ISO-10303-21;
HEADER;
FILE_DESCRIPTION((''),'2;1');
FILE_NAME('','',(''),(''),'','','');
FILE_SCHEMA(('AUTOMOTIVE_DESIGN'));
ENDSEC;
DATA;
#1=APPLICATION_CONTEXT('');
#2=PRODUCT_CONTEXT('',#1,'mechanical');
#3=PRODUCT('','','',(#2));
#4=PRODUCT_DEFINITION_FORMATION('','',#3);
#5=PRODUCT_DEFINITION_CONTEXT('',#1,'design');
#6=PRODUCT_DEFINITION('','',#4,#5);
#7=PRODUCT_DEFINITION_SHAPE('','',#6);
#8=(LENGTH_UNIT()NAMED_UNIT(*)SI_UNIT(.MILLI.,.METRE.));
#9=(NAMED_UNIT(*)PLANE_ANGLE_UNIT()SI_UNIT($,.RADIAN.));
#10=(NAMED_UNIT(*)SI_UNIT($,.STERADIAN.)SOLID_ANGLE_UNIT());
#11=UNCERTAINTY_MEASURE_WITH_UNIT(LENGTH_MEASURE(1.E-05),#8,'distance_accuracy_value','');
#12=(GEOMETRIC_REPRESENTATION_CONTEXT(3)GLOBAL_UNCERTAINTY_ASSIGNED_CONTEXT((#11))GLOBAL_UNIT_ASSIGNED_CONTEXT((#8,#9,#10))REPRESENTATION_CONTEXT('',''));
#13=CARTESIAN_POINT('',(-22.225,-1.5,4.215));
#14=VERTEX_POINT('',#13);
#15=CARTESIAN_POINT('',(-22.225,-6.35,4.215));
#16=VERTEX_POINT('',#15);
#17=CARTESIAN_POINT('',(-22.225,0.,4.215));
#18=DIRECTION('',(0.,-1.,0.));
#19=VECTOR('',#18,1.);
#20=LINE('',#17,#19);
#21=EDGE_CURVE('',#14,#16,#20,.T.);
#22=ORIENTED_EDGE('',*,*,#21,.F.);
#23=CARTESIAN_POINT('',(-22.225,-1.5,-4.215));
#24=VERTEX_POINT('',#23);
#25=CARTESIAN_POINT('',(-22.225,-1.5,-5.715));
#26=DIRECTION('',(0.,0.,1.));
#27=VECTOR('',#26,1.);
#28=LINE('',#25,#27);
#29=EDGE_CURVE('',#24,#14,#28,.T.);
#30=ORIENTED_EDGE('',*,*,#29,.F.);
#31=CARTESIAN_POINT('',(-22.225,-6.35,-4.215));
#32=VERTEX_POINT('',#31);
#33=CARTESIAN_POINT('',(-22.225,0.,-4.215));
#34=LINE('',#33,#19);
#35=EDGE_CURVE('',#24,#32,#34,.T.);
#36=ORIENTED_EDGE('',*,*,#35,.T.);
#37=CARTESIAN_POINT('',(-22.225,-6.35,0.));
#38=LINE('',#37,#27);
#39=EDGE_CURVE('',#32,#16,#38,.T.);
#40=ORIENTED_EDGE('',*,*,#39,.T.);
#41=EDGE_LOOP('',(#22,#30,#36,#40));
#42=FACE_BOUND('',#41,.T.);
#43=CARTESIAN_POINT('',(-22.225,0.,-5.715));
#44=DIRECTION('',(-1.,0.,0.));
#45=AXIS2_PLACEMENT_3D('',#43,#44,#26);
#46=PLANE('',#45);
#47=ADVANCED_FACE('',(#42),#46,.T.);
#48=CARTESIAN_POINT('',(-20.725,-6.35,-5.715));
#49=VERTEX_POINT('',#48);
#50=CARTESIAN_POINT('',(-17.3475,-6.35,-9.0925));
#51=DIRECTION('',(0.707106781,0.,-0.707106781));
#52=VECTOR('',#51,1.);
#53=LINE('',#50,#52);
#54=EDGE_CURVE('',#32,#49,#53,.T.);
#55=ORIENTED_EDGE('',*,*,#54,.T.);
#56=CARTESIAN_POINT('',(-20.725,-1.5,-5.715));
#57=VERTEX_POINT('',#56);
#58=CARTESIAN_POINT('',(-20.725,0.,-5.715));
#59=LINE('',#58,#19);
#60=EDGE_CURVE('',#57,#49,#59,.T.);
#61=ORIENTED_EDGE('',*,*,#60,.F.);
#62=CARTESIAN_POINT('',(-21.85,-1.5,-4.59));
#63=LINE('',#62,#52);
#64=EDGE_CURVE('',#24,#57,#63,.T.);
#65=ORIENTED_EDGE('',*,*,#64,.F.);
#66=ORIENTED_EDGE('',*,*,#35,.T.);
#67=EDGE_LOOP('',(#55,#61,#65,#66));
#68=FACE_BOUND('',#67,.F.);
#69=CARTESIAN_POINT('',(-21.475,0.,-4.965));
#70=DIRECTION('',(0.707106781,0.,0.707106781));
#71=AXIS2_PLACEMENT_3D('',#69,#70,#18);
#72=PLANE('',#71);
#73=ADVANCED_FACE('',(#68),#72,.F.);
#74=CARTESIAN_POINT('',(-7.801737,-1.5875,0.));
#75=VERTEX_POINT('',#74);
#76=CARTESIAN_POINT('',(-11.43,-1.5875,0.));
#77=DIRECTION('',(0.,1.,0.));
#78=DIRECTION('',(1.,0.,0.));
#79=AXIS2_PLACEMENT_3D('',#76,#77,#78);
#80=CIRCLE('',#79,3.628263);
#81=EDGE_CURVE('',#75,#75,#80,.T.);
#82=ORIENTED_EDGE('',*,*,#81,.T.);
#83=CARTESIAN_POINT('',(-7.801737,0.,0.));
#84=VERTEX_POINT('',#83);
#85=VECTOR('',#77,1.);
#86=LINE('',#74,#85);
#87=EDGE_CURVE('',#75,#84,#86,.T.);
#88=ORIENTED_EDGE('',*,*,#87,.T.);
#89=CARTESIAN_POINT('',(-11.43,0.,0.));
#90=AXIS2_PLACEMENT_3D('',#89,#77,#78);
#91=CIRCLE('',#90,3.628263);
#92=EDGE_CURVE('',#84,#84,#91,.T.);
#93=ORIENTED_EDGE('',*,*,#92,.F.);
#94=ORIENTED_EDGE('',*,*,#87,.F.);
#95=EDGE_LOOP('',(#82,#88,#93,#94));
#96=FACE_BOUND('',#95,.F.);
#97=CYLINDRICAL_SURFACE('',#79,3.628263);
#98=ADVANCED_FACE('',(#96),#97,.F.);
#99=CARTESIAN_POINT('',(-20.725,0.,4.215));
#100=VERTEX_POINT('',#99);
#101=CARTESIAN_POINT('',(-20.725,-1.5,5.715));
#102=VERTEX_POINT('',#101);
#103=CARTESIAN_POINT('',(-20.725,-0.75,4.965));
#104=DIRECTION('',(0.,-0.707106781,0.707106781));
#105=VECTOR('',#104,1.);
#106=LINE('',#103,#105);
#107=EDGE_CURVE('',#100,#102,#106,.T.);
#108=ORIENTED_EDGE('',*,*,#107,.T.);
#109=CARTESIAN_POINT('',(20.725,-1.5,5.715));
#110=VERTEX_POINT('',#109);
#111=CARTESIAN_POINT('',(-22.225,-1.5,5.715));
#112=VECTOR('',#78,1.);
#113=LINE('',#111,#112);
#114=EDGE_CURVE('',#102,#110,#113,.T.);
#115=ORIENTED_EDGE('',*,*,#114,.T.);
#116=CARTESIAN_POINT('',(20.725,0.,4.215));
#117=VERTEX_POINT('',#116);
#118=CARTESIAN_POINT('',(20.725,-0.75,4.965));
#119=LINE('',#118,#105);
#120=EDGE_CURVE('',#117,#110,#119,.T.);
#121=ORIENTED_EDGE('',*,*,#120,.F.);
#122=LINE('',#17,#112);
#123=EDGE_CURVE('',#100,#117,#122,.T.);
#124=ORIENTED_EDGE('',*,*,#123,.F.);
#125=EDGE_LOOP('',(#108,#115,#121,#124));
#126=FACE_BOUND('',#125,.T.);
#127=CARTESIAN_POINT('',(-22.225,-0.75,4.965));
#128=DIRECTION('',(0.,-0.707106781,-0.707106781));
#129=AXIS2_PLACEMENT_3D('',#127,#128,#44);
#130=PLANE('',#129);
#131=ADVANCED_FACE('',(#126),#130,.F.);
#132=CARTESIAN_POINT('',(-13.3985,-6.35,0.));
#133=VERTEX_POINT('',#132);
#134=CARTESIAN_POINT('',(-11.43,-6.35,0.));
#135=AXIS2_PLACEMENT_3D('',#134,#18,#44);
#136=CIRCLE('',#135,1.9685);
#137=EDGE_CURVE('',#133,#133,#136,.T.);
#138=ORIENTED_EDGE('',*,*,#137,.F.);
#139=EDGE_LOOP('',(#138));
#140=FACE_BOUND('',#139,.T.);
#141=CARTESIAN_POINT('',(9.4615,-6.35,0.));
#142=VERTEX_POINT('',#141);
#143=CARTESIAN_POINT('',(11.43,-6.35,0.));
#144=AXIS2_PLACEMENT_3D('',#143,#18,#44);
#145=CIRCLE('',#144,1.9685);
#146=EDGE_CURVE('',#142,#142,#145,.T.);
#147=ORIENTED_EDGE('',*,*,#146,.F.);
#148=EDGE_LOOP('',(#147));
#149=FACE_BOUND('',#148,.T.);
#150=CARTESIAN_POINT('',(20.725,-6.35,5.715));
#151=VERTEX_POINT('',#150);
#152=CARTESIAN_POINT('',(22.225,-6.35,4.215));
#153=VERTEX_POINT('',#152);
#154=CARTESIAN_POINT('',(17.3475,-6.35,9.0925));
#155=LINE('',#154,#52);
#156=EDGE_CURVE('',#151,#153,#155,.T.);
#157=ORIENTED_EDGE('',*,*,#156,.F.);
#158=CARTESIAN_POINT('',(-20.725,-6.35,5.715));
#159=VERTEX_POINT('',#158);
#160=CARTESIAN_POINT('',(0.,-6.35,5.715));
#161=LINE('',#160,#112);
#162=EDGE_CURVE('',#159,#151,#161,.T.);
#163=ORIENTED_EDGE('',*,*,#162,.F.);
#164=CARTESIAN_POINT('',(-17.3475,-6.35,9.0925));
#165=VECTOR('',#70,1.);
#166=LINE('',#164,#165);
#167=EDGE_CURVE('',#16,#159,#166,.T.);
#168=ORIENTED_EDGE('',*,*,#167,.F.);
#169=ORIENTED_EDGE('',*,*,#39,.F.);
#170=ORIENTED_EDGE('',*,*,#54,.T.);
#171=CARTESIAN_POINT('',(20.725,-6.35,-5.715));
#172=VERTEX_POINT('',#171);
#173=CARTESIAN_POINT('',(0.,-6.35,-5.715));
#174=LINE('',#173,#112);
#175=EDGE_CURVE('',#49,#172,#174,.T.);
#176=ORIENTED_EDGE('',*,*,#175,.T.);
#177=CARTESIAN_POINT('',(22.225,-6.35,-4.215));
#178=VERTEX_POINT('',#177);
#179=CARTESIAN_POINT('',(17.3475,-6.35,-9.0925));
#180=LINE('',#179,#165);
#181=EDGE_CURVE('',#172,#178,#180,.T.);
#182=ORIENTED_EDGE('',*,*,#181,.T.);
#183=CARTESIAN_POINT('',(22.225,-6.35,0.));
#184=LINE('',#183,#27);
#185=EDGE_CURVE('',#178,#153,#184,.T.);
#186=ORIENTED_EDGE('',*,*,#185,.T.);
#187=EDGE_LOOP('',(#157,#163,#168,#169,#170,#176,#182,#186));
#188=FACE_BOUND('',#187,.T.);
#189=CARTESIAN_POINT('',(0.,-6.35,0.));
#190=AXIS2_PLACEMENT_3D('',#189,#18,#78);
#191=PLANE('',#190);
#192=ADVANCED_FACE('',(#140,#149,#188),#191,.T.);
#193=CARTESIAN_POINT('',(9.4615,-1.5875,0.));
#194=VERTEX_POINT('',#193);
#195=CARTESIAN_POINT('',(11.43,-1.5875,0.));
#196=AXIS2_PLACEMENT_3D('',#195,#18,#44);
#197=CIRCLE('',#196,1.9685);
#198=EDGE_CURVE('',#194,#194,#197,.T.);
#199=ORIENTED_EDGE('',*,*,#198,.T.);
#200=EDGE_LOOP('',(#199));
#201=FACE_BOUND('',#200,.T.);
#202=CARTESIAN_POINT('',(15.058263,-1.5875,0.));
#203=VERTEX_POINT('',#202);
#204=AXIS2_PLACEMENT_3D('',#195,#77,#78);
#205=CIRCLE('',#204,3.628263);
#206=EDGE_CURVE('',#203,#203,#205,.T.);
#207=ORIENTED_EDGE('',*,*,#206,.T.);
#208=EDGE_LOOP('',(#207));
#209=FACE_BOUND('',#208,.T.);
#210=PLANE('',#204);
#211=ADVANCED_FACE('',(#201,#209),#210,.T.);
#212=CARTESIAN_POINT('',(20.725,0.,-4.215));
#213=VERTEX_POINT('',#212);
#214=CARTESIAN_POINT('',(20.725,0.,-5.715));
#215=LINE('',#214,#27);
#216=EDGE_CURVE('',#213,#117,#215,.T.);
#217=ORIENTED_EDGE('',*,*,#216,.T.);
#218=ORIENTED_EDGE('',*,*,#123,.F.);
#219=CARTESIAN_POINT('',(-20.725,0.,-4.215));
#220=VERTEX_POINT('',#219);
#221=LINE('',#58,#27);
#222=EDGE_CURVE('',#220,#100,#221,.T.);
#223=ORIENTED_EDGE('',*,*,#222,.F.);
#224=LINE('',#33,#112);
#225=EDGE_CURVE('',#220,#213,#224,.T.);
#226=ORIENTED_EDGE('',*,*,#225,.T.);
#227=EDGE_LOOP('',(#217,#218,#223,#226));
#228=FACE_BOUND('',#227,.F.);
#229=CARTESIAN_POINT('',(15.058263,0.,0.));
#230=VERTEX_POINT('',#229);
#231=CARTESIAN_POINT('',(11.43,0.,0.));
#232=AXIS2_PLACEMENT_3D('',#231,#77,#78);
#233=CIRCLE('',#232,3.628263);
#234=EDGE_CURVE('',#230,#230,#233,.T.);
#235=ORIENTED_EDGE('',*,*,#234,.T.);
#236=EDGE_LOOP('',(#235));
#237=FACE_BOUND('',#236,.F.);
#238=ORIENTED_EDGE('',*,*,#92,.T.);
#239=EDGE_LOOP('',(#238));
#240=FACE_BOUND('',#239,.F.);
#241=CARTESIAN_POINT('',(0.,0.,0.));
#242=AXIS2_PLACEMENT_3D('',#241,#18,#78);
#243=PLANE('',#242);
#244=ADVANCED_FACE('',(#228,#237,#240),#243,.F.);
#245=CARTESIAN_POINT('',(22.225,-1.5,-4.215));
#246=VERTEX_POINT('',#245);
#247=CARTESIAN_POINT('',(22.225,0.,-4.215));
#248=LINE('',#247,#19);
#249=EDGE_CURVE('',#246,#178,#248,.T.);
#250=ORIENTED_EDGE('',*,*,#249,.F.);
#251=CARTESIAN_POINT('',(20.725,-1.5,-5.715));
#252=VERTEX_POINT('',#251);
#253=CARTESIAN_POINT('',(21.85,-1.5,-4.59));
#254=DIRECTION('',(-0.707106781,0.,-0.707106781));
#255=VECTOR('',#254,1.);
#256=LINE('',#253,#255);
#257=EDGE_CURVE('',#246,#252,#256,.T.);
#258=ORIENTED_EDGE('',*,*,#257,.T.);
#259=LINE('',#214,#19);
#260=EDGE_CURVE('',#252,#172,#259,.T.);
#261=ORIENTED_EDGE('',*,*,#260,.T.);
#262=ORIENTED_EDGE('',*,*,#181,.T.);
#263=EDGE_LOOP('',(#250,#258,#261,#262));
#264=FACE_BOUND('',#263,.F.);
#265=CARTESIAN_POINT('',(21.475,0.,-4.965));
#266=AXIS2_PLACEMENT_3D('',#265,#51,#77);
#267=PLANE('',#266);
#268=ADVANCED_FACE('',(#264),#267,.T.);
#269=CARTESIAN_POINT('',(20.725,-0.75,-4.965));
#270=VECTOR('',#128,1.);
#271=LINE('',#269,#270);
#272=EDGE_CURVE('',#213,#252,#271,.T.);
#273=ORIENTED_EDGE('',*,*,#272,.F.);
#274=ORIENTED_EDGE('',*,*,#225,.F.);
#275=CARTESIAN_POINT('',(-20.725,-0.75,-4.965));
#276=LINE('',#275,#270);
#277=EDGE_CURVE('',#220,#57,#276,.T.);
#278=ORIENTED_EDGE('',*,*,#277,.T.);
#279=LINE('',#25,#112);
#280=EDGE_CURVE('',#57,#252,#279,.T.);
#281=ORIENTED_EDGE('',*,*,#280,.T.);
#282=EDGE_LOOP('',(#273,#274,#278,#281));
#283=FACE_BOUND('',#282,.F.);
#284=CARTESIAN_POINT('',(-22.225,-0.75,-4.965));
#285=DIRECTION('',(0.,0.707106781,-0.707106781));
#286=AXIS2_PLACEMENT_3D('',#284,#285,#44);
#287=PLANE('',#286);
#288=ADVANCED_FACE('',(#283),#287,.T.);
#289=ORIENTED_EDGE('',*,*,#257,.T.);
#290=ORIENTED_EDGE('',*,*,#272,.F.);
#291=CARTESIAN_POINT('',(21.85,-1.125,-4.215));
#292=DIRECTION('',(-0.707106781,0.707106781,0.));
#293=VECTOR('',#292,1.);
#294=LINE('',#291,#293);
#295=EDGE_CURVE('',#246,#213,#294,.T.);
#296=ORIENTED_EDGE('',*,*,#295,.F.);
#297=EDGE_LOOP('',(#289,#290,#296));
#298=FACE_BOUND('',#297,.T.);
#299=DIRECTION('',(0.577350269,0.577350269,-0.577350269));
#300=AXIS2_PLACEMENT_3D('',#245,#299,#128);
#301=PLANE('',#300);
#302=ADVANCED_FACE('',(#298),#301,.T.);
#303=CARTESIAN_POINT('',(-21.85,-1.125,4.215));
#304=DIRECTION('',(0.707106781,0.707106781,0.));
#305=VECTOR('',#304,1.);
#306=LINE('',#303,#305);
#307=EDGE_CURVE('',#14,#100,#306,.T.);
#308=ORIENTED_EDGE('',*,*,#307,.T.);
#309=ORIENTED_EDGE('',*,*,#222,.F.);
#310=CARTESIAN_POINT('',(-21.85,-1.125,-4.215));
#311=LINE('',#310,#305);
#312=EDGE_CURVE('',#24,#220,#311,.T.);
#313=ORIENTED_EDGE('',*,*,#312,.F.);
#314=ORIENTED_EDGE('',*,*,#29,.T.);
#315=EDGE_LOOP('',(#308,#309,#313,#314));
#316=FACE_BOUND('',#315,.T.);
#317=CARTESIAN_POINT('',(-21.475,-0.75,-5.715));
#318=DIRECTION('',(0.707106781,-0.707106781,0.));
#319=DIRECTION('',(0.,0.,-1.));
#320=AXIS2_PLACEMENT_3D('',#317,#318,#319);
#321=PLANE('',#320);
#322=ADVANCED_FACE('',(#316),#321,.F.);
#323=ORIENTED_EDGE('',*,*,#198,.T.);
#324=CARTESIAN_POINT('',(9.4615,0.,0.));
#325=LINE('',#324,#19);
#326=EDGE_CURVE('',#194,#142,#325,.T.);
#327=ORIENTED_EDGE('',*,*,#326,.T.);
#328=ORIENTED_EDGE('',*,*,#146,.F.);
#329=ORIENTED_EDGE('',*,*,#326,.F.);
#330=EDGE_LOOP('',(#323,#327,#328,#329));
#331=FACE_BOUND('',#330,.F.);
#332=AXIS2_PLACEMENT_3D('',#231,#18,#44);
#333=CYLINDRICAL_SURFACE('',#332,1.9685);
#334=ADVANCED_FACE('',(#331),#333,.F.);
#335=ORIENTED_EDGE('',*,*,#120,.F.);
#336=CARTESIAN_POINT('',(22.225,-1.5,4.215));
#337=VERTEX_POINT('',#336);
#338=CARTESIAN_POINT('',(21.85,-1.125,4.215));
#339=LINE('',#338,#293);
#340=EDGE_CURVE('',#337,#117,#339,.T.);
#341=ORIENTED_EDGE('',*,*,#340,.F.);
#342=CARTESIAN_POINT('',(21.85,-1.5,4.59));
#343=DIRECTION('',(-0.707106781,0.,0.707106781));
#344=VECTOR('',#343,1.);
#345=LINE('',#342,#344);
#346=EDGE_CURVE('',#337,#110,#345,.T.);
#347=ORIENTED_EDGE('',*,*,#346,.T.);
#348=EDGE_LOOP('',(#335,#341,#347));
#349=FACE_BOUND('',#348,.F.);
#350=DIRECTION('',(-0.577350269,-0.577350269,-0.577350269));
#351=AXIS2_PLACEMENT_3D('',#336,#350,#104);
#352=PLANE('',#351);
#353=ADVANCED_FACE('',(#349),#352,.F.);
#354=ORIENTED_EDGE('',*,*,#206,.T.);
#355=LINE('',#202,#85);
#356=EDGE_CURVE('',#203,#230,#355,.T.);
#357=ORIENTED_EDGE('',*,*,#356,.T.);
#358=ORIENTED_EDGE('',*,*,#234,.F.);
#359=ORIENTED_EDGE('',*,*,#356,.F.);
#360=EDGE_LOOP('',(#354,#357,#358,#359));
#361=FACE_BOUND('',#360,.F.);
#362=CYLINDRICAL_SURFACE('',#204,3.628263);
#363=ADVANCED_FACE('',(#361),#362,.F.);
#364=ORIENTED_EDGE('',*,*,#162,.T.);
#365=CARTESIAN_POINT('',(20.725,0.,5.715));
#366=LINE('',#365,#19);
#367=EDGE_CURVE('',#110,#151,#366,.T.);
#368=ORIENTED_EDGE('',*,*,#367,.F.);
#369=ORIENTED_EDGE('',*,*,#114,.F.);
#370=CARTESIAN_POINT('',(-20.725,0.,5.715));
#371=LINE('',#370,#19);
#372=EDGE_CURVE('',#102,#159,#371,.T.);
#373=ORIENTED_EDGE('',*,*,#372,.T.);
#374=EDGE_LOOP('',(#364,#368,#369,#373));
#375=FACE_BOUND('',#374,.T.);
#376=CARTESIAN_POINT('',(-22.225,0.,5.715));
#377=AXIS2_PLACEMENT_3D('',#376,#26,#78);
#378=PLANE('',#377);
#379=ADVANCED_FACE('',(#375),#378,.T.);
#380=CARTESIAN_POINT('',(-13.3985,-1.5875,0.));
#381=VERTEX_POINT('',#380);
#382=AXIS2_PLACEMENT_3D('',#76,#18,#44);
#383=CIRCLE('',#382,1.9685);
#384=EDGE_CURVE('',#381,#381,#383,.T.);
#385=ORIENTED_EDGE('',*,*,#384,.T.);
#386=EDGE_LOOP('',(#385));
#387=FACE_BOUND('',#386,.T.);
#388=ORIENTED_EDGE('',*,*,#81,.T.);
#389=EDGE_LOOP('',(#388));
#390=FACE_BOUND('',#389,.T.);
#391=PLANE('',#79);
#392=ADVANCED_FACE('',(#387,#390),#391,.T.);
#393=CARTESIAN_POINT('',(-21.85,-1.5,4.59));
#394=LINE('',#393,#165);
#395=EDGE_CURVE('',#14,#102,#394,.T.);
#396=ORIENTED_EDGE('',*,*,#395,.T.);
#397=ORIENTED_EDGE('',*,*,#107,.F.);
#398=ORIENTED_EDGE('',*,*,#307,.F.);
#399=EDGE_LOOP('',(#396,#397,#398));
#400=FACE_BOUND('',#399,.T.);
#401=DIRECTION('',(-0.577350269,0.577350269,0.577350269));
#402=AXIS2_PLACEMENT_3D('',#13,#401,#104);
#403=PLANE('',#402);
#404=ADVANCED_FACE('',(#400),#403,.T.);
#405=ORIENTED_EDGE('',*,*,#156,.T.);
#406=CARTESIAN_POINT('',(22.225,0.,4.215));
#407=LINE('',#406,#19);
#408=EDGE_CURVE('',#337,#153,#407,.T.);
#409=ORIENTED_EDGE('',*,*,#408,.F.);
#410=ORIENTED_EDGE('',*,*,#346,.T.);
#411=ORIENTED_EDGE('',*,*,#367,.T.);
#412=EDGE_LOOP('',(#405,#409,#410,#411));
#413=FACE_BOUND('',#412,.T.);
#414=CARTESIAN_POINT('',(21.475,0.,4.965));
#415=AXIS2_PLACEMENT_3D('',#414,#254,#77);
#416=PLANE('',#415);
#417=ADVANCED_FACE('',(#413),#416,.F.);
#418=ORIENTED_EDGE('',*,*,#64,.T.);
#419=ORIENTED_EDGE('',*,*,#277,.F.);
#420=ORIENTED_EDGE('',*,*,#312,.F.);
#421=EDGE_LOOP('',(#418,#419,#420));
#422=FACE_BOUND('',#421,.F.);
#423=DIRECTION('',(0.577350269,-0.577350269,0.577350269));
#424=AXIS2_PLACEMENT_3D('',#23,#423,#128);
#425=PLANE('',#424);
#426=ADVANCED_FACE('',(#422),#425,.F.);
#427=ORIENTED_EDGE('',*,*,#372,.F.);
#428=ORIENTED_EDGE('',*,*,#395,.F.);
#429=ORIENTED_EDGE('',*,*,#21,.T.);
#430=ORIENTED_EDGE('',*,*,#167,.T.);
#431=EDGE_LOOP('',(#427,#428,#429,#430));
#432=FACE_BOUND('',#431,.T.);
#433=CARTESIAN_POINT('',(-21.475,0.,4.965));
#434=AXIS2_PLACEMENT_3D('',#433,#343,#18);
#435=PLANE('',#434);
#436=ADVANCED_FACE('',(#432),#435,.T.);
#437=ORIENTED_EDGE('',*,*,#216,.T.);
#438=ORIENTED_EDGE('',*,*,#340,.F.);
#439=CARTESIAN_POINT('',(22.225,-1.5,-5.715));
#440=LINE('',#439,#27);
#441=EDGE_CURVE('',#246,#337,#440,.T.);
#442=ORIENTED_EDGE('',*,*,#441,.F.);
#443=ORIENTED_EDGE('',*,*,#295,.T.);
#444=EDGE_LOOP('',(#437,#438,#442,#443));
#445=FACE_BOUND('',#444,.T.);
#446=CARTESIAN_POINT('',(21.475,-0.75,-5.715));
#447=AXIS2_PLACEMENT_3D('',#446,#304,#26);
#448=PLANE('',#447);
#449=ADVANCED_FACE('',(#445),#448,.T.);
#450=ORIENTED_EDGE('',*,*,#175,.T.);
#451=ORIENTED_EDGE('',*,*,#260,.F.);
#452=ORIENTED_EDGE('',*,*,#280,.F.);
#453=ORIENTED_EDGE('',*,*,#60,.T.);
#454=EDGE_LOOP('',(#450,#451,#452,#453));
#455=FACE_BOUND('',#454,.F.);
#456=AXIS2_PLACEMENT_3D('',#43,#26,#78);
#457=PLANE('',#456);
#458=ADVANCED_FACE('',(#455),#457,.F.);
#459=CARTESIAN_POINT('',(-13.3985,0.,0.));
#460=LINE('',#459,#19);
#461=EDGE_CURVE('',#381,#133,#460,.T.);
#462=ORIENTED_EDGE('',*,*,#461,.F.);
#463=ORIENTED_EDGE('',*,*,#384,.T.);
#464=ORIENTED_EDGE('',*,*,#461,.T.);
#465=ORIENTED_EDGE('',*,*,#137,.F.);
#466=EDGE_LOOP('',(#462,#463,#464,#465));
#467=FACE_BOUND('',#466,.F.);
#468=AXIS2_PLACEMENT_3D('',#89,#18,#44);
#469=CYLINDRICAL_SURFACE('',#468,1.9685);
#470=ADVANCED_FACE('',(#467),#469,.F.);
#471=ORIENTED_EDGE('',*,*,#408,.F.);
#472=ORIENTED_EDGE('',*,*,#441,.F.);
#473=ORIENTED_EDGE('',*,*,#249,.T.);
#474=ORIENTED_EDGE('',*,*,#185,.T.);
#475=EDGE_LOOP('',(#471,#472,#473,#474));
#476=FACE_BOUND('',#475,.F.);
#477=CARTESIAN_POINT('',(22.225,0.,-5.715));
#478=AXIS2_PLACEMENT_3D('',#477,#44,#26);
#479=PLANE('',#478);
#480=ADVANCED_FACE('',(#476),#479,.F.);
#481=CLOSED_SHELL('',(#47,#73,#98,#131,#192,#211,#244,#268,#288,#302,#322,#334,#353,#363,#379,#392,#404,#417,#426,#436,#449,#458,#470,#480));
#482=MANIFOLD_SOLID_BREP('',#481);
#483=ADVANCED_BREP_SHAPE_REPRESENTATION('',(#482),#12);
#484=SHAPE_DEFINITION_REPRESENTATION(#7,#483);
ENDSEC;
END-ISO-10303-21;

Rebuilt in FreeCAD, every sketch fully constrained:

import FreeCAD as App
import Part
import Sketcher

V = App.Vector
Q = App.Units.Quantity


def edges_at(feature, points):
    """Names of the edges that pass closest to the given points."""
    edges = feature.Shape.Edges
    near = lambda p: min(range(len(edges)), key=lambda i: edges[i].distToShape(Part.Vertex(*p))[0])
    return sorted({f"Edge{near(p) + 1}" for p in points})

doc = App.newDocument("Part")
body = doc.addObject("PartDesign::Body", "Body")

# Sketch on XZ plane
sketch1 = body.newObject("Sketcher::SketchObject", "Sketch")
sketch1.AttachmentSupport = (doc.getObject("XZ_Plane"), [""])
sketch1.MapMode = "FlatFace"
sketch1.addGeometry([
    Part.LineSegment(V(-22, 6, 0), V(-22, -6, 0)),
    Part.LineSegment(V(-22, -6, 0), V(22, -6, 0)),
    Part.LineSegment(V(22, -6, 0), V(22, 6, 0)),
    Part.LineSegment(V(22, 6, 0), V(-22, 6, 0)),
], False)
sketch1.addConstraint([
    Sketcher.Constraint("Coincident", 0, 2, 1, 1),
    Sketcher.Constraint("Coincident", 1, 2, 2, 1),
    Sketcher.Constraint("Coincident", 2, 2, 3, 1),
    Sketcher.Constraint("Coincident", 3, 2, 0, 1),
    Sketcher.Constraint("Vertical", 0),
    Sketcher.Constraint("Horizontal", 1),
    Sketcher.Constraint("Vertical", 2),
    Sketcher.Constraint("Horizontal", 3),
    Sketcher.Constraint("Symmetric", 0, 2, 2, 2, -1, 1),
    Sketcher.Constraint("DistanceX", 1, 1, 1, 2, Q("1.75 in")),
    Sketcher.Constraint("DistanceY", 0, 2, 0, 1, Q("0.45 in")),
])
pad1 = body.newObject("PartDesign::Pad", "Pad")
pad1.Profile = sketch1
pad1.Length = Q("0.25 in")

# Sketch on XZ plane
sketch2 = body.newObject("Sketcher::SketchObject", "Sketch001")
sketch2.AttachmentSupport = (doc.getObject("XZ_Plane"), [""])
sketch2.MapMode = "FlatFace"
sketch2.addGeometry([
    Part.Circle(V(-11.4, 0, 0), V(0, 0, 1), 2),
    Part.Circle(V(11.4, 0, 0), V(0, 0, 1), 2),
], False)
sketch2.addConstraint([
    Sketcher.Constraint("Equal", 0, 1),
    Sketcher.Constraint("Symmetric", 0, 3, 1, 3, -1, 1),
    Sketcher.Constraint("PointOnObject", 0, 3, -1),
    Sketcher.Constraint("Diameter", 0, Q("0.155 in")),
    Sketcher.Constraint("DistanceX", 0, 3, 1, 3, Q("0.9 in")),
])
doc.recompute()
hole = body.newObject("PartDesign::Hole", "Hole")
hole.Profile = sketch2
hole.ThreadType = "None"
hole.Diameter = Q("0.155 in")
hole.DepthType = "Dimension"
hole.Depth = Q("0.25 in")
hole.DrillPoint = "Flat"
hole.HoleCutType = "Counterbore"
hole.HoleCutDiameter = 7.256526
hole.HoleCutDepth = Q("0.0625 in")
hole.Reversed = True
doc.recompute()

chamfer = body.newObject("PartDesign::Chamfer", "Chamfer")
chamfer.Base = (hole, edges_at(hole, [
    (0, 0, 5.715),
    (0, 0, -5.715),
    (22.225, 0, 0),
    (-22.225, 0, 0),
    (22.225, -3.175, -5.715),
    (22.225, -3.175, 5.715),
    (-22.225, -3.175, 5.715),
    (-22.225, -3.175, -5.715),
]))
chamfer.Size = 1.5

doc.recompute()
